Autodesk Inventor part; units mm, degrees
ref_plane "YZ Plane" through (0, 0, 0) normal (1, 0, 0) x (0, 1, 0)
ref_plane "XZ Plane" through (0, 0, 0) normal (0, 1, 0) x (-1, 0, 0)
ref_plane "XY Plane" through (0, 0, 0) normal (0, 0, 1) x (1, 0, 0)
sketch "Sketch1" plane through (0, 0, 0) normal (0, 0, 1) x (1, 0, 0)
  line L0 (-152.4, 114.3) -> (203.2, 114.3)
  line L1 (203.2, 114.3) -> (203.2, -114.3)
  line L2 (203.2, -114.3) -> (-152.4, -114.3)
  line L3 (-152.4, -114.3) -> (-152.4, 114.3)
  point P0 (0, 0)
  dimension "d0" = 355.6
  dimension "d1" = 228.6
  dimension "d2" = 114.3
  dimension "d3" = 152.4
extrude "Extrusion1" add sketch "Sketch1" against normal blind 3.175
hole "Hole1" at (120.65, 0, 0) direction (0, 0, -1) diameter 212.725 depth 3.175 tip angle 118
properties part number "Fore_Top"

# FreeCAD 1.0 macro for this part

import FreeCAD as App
import Part
import Sketcher
from FreeCAD import Vector
Q = App.Units.Quantity

doc = App.newDocument("Part")
body = doc.addObject("PartDesign::Body", "Body")

# Sketch on XY plane
sketch1 = doc.addObject("Sketcher::SketchObject", "Sketch")
body.addObject(sketch1)
sketch1.AttachmentSupport = (doc.XY_Plane, [""])
sketch1.MapMode = "FlatFace"
sketch1.addGeometry([
    Part.LineSegment(Vector(203, 114, 0), Vector(-152, 114, 0)),
    Part.LineSegment(Vector(-152, 114, 0), Vector(-152, -114, 0)),
    Part.LineSegment(Vector(-152, -114, 0), Vector(203, -114, 0)),
    Part.LineSegment(Vector(203, -114, 0), Vector(203, 114, 0)),
], False)
sketch1.addConstraint([
    Sketcher.Constraint("Coincident", 0, 2, 1, 1),
    Sketcher.Constraint("Coincident", 1, 2, 2, 1),
    Sketcher.Constraint("Coincident", 2, 2, 3, 1),
    Sketcher.Constraint("Coincident", 3, 2, 0, 1),
    Sketcher.Constraint("Horizontal", 0),
    Sketcher.Constraint("Vertical", 1),
    Sketcher.Constraint("Horizontal", 2),
    Sketcher.Constraint("Vertical", 3),
    Sketcher.Constraint("DistanceX", 0, 2, 0, 1, Q("14 in")),
    Sketcher.Constraint("DistanceY", 1, 2, 1, 1, Q("9 in")),
    Sketcher.Constraint("DistanceX", 0, 2, -1, 1, Q("6 in")),
    Sketcher.Constraint("DistanceY", -1, 1, 0, 2, Q("4.5 in")),
])
pad1 = doc.addObject("PartDesign::Pad", "Pad")
body.addObject(pad1)
pad1.Profile = sketch1
pad1.Length = Q("0.125 in")
pad1.Reversed = True

# Sketch on XY plane
sketch2 = doc.addObject("Sketcher::SketchObject", "Sketch001")
body.addObject(sketch2)
sketch2.AttachmentSupport = (doc.XY_Plane, [""])
sketch2.MapMode = "FlatFace"
sketch2.addGeometry(Part.Circle(Vector(121, 0, 0), Vector(0, 0, 1), 106), False)
sketch2.addConstraint([
    Sketcher.Constraint("PointOnObject", 0, 3, -1),
    Sketcher.Constraint("Diameter", 0, Q("8.375 in")),
    Sketcher.Constraint("DistanceX", -1, 1, 0, 3, Q("4.75 in")),
])
doc.recompute()
hole = doc.addObject("PartDesign::Hole", "Hole")
body.addObject(hole)
hole.Profile = sketch2
hole.ThreadType = "None"
hole.Diameter = Q("8.375 in")
hole.DepthType = "Dimension"
hole.Depth = Q("0.125 in")
hole.DrillPoint = "Angled"
hole.DrillPointAngle = 118

doc.recompute()
